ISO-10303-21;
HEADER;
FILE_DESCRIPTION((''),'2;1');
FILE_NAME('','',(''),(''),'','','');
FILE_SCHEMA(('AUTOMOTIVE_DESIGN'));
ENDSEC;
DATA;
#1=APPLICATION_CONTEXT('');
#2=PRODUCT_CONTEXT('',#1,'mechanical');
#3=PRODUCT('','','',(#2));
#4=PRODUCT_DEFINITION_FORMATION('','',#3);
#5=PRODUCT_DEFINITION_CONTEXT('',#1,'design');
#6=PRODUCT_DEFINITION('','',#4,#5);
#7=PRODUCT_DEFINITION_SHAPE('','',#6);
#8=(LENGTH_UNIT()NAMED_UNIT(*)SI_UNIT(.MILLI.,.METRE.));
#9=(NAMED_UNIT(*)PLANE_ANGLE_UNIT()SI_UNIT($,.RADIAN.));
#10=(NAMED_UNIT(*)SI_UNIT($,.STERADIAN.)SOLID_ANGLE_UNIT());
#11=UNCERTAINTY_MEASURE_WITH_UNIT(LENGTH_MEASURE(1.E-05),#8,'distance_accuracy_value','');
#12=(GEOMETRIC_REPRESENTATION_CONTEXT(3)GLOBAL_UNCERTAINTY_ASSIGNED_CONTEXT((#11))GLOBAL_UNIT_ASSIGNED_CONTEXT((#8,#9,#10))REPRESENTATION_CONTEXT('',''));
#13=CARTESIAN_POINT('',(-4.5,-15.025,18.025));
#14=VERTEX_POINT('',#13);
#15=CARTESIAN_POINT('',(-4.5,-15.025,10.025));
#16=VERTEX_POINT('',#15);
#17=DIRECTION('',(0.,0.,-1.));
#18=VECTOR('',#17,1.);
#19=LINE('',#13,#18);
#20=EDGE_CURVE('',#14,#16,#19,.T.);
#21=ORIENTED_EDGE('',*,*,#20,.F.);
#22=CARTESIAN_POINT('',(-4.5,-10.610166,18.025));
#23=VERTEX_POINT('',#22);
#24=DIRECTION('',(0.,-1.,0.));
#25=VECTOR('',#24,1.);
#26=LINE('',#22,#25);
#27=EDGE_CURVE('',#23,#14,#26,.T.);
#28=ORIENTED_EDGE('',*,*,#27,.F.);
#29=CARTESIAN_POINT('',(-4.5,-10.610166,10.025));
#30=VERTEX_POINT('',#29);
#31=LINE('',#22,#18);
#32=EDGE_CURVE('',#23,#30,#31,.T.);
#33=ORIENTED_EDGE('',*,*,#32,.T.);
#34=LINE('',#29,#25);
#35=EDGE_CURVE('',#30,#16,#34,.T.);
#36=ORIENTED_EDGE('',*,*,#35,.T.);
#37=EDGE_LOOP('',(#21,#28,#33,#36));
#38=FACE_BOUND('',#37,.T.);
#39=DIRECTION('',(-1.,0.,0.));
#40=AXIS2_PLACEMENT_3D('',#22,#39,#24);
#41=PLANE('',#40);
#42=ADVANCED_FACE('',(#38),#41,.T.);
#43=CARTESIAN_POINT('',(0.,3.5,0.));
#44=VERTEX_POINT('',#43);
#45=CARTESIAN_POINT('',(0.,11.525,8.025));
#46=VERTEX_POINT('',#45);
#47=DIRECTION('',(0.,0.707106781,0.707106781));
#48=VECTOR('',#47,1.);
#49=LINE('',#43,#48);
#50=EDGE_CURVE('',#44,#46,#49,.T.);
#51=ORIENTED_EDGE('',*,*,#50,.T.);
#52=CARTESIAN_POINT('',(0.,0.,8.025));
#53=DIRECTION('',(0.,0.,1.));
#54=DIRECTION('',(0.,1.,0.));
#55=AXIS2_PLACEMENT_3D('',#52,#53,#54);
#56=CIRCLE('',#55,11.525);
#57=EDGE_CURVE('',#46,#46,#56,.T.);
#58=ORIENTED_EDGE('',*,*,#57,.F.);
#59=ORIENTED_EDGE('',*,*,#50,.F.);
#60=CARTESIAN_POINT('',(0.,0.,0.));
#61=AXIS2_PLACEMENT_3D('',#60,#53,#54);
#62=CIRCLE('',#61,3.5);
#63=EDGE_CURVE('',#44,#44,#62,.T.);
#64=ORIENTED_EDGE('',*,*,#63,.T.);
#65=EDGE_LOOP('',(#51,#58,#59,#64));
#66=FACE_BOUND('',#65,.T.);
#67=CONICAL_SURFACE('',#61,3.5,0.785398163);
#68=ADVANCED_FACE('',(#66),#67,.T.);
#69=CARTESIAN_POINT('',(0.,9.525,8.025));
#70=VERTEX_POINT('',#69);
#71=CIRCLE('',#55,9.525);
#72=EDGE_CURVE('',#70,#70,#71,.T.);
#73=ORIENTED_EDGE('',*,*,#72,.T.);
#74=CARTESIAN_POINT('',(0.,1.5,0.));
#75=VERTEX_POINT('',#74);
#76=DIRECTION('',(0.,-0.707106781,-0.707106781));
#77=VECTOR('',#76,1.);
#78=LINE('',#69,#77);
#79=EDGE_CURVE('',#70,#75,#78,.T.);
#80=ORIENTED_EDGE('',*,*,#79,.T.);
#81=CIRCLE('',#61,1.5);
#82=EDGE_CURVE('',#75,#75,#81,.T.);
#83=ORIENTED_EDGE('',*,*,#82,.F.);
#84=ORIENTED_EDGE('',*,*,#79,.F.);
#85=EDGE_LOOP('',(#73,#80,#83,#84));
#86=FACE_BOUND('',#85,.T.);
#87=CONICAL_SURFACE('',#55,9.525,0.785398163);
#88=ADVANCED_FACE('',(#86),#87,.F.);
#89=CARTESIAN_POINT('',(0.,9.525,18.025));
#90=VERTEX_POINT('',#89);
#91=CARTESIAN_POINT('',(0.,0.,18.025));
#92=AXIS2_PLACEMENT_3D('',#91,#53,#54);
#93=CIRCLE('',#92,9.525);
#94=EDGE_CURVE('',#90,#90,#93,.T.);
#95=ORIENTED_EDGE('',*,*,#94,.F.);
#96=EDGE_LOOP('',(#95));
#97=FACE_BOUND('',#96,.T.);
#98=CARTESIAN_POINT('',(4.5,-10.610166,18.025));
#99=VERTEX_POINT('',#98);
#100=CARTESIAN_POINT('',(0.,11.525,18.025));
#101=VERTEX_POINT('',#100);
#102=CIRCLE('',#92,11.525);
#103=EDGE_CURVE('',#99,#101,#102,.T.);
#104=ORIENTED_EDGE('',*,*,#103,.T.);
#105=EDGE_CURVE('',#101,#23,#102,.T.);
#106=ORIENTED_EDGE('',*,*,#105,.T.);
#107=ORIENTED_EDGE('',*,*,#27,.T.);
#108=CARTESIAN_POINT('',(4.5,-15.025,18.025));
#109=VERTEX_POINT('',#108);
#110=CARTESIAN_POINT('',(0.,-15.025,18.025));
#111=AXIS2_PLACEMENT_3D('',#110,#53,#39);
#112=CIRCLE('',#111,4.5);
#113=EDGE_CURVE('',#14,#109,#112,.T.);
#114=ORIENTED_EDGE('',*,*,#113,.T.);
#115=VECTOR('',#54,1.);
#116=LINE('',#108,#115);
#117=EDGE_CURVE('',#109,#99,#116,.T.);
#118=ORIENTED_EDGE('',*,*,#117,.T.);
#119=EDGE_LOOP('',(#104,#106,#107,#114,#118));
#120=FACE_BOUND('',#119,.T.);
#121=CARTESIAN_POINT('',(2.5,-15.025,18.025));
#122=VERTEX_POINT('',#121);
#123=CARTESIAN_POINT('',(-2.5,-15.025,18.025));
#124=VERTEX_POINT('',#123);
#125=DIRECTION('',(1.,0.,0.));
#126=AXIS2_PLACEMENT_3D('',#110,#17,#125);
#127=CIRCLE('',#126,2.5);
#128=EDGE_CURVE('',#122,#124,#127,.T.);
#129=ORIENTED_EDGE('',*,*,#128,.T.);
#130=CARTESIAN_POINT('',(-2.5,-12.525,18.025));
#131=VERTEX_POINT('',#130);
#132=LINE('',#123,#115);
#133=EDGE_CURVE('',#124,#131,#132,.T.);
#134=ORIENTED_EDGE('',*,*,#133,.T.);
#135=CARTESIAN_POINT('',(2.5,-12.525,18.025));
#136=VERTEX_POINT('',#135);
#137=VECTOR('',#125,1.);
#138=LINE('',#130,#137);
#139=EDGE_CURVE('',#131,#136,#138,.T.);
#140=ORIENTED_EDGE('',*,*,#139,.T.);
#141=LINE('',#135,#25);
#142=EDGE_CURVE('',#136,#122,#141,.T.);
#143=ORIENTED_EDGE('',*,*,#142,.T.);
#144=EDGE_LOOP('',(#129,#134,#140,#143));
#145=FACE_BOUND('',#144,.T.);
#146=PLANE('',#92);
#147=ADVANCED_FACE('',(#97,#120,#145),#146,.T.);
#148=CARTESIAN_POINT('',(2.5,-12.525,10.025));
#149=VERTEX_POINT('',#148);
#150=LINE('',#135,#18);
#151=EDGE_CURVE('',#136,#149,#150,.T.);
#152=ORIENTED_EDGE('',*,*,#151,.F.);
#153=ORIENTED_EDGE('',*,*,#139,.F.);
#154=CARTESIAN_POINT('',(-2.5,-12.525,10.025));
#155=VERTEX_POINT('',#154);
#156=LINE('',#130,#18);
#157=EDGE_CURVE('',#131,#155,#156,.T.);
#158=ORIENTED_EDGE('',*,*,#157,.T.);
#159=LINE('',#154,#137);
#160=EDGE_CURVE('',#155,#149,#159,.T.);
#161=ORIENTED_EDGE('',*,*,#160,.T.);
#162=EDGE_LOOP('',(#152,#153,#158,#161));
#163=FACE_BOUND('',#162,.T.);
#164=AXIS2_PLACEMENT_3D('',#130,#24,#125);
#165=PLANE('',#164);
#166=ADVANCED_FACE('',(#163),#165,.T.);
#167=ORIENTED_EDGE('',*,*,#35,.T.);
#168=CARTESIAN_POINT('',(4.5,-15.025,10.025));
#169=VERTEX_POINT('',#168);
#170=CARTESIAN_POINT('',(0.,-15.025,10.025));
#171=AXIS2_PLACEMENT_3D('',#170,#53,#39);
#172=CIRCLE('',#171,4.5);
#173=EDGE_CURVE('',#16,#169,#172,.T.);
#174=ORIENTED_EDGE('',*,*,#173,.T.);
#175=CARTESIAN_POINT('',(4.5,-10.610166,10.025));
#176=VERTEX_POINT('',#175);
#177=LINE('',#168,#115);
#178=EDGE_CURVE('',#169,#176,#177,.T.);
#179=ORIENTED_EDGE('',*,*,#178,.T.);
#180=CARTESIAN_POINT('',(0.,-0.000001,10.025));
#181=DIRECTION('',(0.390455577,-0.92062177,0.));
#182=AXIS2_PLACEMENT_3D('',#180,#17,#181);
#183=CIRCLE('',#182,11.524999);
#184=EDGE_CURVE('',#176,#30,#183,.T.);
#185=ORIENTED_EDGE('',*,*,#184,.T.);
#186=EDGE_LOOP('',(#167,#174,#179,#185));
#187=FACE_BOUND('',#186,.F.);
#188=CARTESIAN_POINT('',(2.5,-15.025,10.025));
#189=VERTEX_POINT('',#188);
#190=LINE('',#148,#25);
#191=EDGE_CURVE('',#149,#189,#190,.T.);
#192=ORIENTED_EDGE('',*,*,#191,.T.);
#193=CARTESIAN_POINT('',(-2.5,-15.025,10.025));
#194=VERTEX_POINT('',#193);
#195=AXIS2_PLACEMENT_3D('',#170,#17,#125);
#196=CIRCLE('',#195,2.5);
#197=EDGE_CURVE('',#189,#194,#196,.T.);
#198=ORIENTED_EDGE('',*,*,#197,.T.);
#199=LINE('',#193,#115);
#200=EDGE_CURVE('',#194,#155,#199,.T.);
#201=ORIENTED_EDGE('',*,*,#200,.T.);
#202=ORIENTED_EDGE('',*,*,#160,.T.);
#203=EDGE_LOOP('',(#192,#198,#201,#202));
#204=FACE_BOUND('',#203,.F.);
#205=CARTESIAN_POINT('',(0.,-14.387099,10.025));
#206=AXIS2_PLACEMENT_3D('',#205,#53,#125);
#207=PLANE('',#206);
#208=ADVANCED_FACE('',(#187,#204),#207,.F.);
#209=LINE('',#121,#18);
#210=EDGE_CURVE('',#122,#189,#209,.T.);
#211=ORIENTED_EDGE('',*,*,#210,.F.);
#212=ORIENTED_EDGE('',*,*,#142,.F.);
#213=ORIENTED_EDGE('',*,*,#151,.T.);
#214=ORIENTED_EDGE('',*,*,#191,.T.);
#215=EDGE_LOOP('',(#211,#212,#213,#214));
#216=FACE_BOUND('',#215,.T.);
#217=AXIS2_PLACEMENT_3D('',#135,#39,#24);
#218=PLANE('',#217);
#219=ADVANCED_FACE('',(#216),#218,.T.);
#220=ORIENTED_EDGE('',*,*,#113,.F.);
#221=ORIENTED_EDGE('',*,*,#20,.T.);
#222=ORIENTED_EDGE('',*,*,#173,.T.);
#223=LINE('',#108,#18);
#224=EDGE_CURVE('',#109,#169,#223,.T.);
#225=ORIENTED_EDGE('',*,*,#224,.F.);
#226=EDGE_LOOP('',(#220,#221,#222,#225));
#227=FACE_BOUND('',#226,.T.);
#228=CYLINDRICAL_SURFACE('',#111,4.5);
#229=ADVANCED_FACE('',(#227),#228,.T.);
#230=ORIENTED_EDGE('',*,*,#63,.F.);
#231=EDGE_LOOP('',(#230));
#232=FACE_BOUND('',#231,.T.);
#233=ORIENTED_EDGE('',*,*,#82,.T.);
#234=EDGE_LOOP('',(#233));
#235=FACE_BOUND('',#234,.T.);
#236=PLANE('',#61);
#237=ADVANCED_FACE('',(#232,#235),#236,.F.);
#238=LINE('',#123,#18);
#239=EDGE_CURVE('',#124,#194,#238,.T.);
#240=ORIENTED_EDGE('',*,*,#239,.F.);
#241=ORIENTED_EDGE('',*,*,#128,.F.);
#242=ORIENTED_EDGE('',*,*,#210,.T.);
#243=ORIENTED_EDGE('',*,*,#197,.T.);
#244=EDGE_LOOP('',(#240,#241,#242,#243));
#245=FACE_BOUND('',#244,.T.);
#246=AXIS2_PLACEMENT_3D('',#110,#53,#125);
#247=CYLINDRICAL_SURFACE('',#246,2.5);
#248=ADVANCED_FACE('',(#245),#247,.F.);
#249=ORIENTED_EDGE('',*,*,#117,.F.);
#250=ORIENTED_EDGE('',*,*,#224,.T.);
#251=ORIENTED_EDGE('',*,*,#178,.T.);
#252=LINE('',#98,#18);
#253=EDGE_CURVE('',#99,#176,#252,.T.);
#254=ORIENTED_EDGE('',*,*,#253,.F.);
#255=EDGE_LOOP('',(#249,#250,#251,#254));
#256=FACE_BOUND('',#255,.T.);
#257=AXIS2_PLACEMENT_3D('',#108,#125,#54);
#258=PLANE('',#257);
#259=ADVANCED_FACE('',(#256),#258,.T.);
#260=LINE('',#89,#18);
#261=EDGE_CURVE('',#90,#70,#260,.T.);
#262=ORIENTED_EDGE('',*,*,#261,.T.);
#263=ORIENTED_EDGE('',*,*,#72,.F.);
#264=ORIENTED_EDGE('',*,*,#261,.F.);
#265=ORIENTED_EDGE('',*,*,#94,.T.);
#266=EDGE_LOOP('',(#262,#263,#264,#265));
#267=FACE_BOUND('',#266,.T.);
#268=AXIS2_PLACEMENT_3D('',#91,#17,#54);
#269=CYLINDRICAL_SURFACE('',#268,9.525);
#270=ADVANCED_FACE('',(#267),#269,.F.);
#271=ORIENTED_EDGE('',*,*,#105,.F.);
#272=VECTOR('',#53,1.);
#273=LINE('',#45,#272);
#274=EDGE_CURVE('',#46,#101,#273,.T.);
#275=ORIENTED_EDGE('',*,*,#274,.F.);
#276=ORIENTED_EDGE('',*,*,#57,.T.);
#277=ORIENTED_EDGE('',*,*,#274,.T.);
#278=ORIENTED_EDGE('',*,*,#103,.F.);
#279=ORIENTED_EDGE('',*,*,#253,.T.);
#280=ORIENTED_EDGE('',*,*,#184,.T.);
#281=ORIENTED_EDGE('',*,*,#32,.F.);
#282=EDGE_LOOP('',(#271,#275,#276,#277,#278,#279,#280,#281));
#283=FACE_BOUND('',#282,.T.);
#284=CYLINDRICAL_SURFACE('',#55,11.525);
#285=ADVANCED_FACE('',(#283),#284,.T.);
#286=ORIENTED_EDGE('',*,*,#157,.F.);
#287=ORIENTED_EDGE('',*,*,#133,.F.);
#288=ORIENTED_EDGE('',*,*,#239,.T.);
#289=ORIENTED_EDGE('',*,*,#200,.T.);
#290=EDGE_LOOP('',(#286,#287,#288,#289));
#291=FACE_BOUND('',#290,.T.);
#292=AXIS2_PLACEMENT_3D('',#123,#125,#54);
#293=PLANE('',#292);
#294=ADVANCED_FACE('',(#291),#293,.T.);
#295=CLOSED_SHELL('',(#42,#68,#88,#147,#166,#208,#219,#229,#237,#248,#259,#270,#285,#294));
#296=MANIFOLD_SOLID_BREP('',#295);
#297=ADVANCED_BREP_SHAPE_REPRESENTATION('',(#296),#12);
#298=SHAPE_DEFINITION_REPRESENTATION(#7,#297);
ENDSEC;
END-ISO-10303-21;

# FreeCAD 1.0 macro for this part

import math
import FreeCAD as App
import Part
import Sketcher

V = App.Vector
Q = App.Units.Quantity


def add_polygon(sketch, points):
    """Adds a closed chain of lines whose ends are joined by coincident constraints."""
    first, n = sketch.GeometryCount, len(points)
    for a, b in zip(points, points[1:] + points[:1]):
        sketch.addGeometry(Part.LineSegment(App.Vector(*a, 0), App.Vector(*b, 0)), False)
    for i in range(n):
        sketch.addConstraint(Sketcher.Constraint("Coincident", first + i, 2, first + (i + 1) % n, 1))

doc = App.newDocument("Part")
body = doc.addObject("PartDesign::Body", "Body")

sketch1 = body.newObject("Sketcher::SketchObject", "Sketch")
sketch1.AttachmentSupport = (doc.getObject("YZ_Plane"), [""])
sketch1.MapMode = "FlatFace"
add_polygon(sketch1, [(9.525, 18.025), (9.525, 8.025), (1.5, 0), (3.5, 0), (11.525, 8.025), (11.525, 18.025)])
sketch1.addConstraint([
    Sketcher.Constraint("Vertical", 0),
    Sketcher.Constraint("Horizontal", 2),
    Sketcher.Constraint("Vertical", 4),
    Sketcher.Constraint("Horizontal", 5),
    Sketcher.Constraint("PointOnObject", 1, 2, -1),
    Sketcher.Constraint("Parallel", 1, 3),
    Sketcher.Constraint("Horizontal", 0, 2, 3, 2),
    Sketcher.Constraint("DistanceX", 2, 1, 2, 2, 2.0),
    Sketcher.Constraint("DistanceY", 0, 2, 0, 1, 10.0),
    Sketcher.Constraint("Angle", 1, Q("-135 deg")),
    Sketcher.Constraint("DistanceX", -1, 1, 1, 2, 1.5),
    Sketcher.Constraint("DistanceX", -1, 1, 0, 2, 9.525),
])
revolution = body.newObject("PartDesign::Revolution", "Revolution")
revolution.Profile = sketch1
revolution.ReferenceAxis = (sketch1, ["V_Axis"])
revolution.Angle = 360

sketch2 = body.newObject("Sketcher::SketchObject", "Sketch001")
sketch2.AttachmentSupport = (doc.getObject("XY_Plane"), [""])
sketch2.MapMode = "FlatFace"
sketch2.AttachmentOffset = App.Placement(V(0, 0, 18.025), App.Rotation())
sketch2.addGeometry([
    Part.ArcOfCircle(Part.Circle(V(0, -0.000001, 0), V(0, 0, 1), 11.524999), math.radians(-112.98285), math.radians(-67.01715)),
    Part.LineSegment(V(-4.5, -10.610166, 0), V(-4.5, -15.025, 0)),
    Part.ArcOfCircle(Part.Circle(V(0, -15.025, 0), V(0, 0, 1), 4.5), math.radians(180), math.radians(360)),
    Part.LineSegment(V(4.5, -15.025, 0), V(4.5, -10.610166, 0)),
    Part.ArcOfCircle(Part.Circle(V(0, -15.025, 0), V(0, 0, 1), 2.5), math.radians(180), math.radians(360)),
    Part.LineSegment(V(-2.5, -15.025, 0), V(-2.5, -12.525, 0)),
    Part.LineSegment(V(-2.5, -12.525, 0), V(2.5, -12.525, 0)),
    Part.LineSegment(V(2.5, -12.525, 0), V(2.5, -15.025, 0)),
], False)
sketch2.addConstraint([
    Sketcher.Constraint("Coincident", 0, 1, 1, 1),
    Sketcher.Constraint("Tangent", 1, 2, 2, 1),
    Sketcher.Constraint("Tangent", 2, 2, 3, 1),
    Sketcher.Constraint("Coincident", 3, 2, 0, 2),
    Sketcher.Constraint("Tangent", 4, 1, 5, 1),
    Sketcher.Constraint("Coincident", 5, 2, 6, 1),
    Sketcher.Constraint("Coincident", 6, 2, 7, 1),
    Sketcher.Constraint("Tangent", 7, 2, 4, 2),
    Sketcher.Constraint("Vertical", 1),
    Sketcher.Constraint("Vertical", 3),
    Sketcher.Constraint("Vertical", 5),
    Sketcher.Constraint("Horizontal", 6),
    Sketcher.Constraint("Vertical", 7),
    Sketcher.Constraint("Coincident", 0, 3, -1, 1),
    Sketcher.Constraint("Coincident", 4, 3, 2, 3),
    Sketcher.Constraint("PointOnObject", 2, 3, -2),
    Sketcher.Constraint("Radius", 2, 4.5),
    Sketcher.Constraint("Radius", 4, 2.5),
    Sketcher.Constraint("DistanceY", 5, 1, 5, 2, 2.5),
    Sketcher.Constraint("Radius", 0, 11.524999),
    Sketcher.Constraint("DistanceY", 2, 3, -1, 1, 15.025),
])
pad1 = body.newObject("PartDesign::Pad", "Pad")
pad1.Profile = sketch2
pad1.Length = 8
pad1.Reversed = True

doc.recompute()
